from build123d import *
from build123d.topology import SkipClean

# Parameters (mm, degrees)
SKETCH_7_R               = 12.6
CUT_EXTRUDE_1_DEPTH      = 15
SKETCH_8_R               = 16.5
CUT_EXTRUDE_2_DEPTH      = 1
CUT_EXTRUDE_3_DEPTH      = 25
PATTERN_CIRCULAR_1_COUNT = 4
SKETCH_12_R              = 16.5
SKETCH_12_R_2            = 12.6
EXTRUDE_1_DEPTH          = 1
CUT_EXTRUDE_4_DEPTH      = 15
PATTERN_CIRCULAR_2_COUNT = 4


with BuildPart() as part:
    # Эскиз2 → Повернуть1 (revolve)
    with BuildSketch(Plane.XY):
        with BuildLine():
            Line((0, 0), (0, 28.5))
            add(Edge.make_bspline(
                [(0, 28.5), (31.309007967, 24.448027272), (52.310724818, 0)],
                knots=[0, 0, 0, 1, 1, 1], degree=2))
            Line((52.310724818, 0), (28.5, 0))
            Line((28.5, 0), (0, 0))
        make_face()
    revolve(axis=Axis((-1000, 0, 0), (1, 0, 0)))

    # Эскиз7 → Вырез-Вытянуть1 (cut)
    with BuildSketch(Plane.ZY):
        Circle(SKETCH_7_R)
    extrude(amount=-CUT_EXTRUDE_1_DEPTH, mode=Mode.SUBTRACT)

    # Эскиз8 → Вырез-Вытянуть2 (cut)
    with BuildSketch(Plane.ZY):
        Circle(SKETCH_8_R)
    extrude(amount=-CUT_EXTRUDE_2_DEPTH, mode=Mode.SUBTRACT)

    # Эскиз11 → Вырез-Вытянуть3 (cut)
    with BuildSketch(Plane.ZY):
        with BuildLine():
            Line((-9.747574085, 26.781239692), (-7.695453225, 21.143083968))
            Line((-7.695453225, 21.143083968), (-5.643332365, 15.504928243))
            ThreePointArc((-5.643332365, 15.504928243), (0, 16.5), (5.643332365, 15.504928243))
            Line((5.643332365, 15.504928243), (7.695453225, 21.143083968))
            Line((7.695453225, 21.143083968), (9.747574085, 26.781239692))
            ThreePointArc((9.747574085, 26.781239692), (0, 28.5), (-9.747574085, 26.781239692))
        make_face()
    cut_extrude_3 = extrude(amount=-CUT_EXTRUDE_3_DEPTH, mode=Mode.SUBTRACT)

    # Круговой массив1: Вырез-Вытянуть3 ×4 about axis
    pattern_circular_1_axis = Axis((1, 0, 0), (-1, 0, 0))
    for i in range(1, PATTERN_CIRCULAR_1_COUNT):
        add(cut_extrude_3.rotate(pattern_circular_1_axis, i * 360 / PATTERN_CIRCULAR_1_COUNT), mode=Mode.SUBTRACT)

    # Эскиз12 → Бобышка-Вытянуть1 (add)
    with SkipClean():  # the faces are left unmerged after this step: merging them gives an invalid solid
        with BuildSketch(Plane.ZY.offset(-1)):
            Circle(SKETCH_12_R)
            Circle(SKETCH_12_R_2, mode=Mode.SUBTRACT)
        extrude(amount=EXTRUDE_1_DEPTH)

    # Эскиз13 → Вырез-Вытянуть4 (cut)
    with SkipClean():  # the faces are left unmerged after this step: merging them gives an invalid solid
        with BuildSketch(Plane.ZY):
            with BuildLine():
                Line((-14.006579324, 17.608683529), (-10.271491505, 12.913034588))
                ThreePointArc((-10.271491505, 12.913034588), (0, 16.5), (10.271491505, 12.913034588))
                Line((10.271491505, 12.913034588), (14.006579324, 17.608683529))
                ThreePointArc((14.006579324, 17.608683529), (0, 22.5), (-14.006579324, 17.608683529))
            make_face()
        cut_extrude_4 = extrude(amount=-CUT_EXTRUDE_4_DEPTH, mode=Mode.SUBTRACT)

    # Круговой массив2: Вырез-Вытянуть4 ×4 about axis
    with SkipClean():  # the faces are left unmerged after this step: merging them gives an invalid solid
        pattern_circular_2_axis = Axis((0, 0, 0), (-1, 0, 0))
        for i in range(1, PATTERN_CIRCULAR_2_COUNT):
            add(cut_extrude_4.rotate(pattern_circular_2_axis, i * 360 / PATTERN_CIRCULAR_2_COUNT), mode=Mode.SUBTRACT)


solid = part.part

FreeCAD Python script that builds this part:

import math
import FreeCAD as App
import Part
import Sketcher
from FreeCAD import Vector
Q = App.Units.Quantity

doc = App.newDocument("Part")
params = doc.addObject("Spreadsheet::Sheet", "Params")
for row, (alias, value) in enumerate([
    ("revolution_angle", "360 deg"),
    ("sketch2_diameter", "25.2 mm"),
    ("pocket1_length", "15 mm"),
    ("sketch3_diameter", "33 mm"),
    ("pocket2_length", "1 mm"),
    ("sketch4_radius", "16.5 mm"),
    ("sketch4_radius2", "28.5 mm"),
    ("pocket3_length", "25 mm"),
    ("sketch5_diameter", "33 mm"),
    ("sketch5_diameter2", "25.2 mm"),
    ("pad1_length", "1 mm"),
    ("sketch6_radius", "16.5 mm"),
    ("sketch6_radius2", "22.5 mm"),
    ("pocket4_length", "15 mm"),
], start=1):
    params.set(f"A{row}", alias)
    params.set(f"B{row}", "=" + value)
    params.setAlias(f"B{row}", alias)

body = doc.addObject("PartDesign::Body", "Body")

sketch1 = body.newObject("Sketcher::SketchObject", "Sketch")
sketch1.AttachmentSupport = (doc.getObject("XY_Plane"), [""])
sketch1.MapMode = "FlatFace"
sketch1.addGeometry([
    Part.LineSegment(Vector(0, 28.5, 0), Vector(0, 0, 0)),
    Part.LineSegment(Vector(0, 0, 0), Vector(52.310725, 0, 0)),
    Part.BSplineCurve([Vector(0, 28.5, 0), Vector(31.309008, 24.448027, 0), Vector(52.310725, 0, 0)], [3, 3], [0, 1], False, 2, [1, 1, 1], False),
], False)
sketch1.addConstraint([
    Sketcher.Constraint("Block", 2),
    Sketcher.Constraint("Coincident", 0, 2, 1, 1),
    Sketcher.Constraint("Coincident", 1, 2, 2, 2),
    Sketcher.Constraint("Coincident", 2, 1, 0, 1),
    Sketcher.Constraint("Vertical", 0),
    Sketcher.Constraint("Horizontal", 1),
])
revolution = body.newObject("PartDesign::Revolution", "Revolution")
revolution.Profile = sketch1
revolution.ReferenceAxis = (sketch1, ["H_Axis"])
revolution.setExpression("Angle", "Params.revolution_angle")

sketch2 = body.newObject("Sketcher::SketchObject", "Sketch001")
sketch2.AttachmentSupport = (doc.getObject("YZ_Plane"), [""])
sketch2.MapMode = "FlatFace"
sketch2.addGeometry(Part.Circle(Vector(0, 0, 0), Vector(0, 0, 1), 13), False)
sketch2.addConstraint([
    Sketcher.Constraint("Coincident", 0, 3, -1, 1),
    Sketcher.Constraint("Diameter", 0, Q("25.2 mm")),
])
sketch2.setExpression("Constraints[1]", "Params.sketch2_diameter")
pocket1 = body.newObject("PartDesign::Pocket", "Pocket")
pocket1.Profile = sketch2
pocket1.setExpression("Length", "Params.pocket1_length")
pocket1.Reversed = True

sketch3 = body.newObject("Sketcher::SketchObject", "Sketch002")
sketch3.AttachmentSupport = (doc.getObject("YZ_Plane"), [""])
sketch3.MapMode = "FlatFace"
sketch3.addGeometry(Part.Circle(Vector(0, 0, 0), Vector(0, 0, 1), 16), False)
sketch3.addConstraint([
    Sketcher.Constraint("Coincident", 0, 3, -1, 1),
    Sketcher.Constraint("Diameter", 0, Q("33 mm")),
])
sketch3.setExpression("Constraints[1]", "Params.sketch3_diameter")
pocket2 = body.newObject("PartDesign::Pocket", "Pocket001")
pocket2.Profile = sketch3
pocket2.setExpression("Length", "Params.pocket2_length")
pocket2.Reversed = True

sketch4 = body.newObject("Sketcher::SketchObject", "Sketch003")
sketch4.AttachmentSupport = (doc.getObject("YZ_Plane"), [""])
sketch4.MapMode = "FlatFace"
sketch4.addGeometry([
    Part.LineSegment(Vector(27, -10, 0), Vector(21, -8, 0)),
    Part.LineSegment(Vector(21, -8, 0), Vector(16, -6, 0)),
    Part.ArcOfCircle(Part.Circle(Vector(0, 0, 0), Vector(0, 0, 1), 17), math.radians(-20), math.radians(20)),
    Part.LineSegment(Vector(16, 6, 0), Vector(21, 8, 0)),
    Part.LineSegment(Vector(21, 8, 0), Vector(27, 10, 0)),
    Part.ArcOfCircle(Part.Circle(Vector(0, 0, 0), Vector(0, 0, 1), 28), math.radians(-20), math.radians(20)),
], False)
sketch4.addConstraint([
    Sketcher.Constraint("Coincident", 0, 2, 1, 1),
    Sketcher.Constraint("Coincident", 1, 2, 2, 1),
    Sketcher.Constraint("Coincident", 2, 2, 3, 1),
    Sketcher.Constraint("Coincident", 3, 2, 4, 1),
    Sketcher.Constraint("Coincident", 4, 2, 5, 2),
    Sketcher.Constraint("Coincident", 5, 1, 0, 1),
    Sketcher.Constraint("Coincident", 2, 3, -1, 1),
    Sketcher.Constraint("Coincident", 5, 3, -1, 1),
    Sketcher.Constraint("Symmetric", 0, 2, 3, 2, -1),
    Sketcher.Constraint("Parallel", 0, 1),
    Sketcher.Constraint("Parallel", 3, 4),
    Sketcher.Constraint("Vertical", 1, 2, 2, 2),
    Sketcher.Constraint("Equal", 0, 1),
    Sketcher.Constraint("Radius", 2, Q("16.5 mm")),
    Sketcher.Constraint("Radius", 5, Q("28.5 mm")),
    Sketcher.Constraint("Angle", 0, Q("160 deg")),
    Sketcher.Constraint("DistanceX", -1, 1, 1, 2, Q("15.504928 mm")),
])
sketch4.setExpression("Constraints[13]", "Params.sketch4_radius")
sketch4.setExpression("Constraints[14]", "Params.sketch4_radius2")
pocket3 = body.newObject("PartDesign::Pocket", "Pocket002")
pocket3.Profile = sketch4
pocket3.setExpression("Length", "Params.pocket3_length")
pocket3.Reversed = True
doc.recompute()

polarpattern = body.newObject("PartDesign::PolarPattern", "PolarPattern")
polarpattern.Originals = [pocket3]
polarpattern.Axis = (doc.getObject("X_Axis"), [""])
polarpattern.Angle = 360
polarpattern.Occurrences = 4
body.Tip = polarpattern

sketch5 = body.newObject("Sketcher::SketchObject", "Sketch004")
sketch5.AttachmentSupport = (doc.getObject("YZ_Plane"), [""])
sketch5.MapMode = "FlatFace"
sketch5.AttachmentOffset = App.Placement(Vector(0, 0, 1), App.Rotation())
sketch5.addGeometry([
    Part.Circle(Vector(0, 0, 0), Vector(0, 0, 1), 16),
    Part.Circle(Vector(0, 0, 0), Vector(0, 0, 1), 13),
], False)
sketch5.addConstraint([
    Sketcher.Constraint("Coincident", 0, 3, -1, 1),
    Sketcher.Constraint("Coincident", 1, 3, -1, 1),
    Sketcher.Constraint("Diameter", 0, Q("33 mm")),
    Sketcher.Constraint("Diameter", 1, Q("25.2 mm")),
])
sketch5.setExpression("Constraints[2]", "Params.sketch5_diameter")
sketch5.setExpression("Constraints[3]", "Params.sketch5_diameter2")
pad1 = body.newObject("PartDesign::Pad", "Pad")
pad1.Profile = sketch5
pad1.setExpression("Length", "Params.pad1_length")
pad1.Reversed = True

sketch6 = body.newObject("Sketcher::SketchObject", "Sketch005")
sketch6.AttachmentSupport = (doc.getObject("YZ_Plane"), [""])
sketch6.MapMode = "FlatFace"
sketch6.addGeometry([
    Part.LineSegment(Vector(18, -14, 0), Vector(13, -10, 0)),
    Part.ArcOfCircle(Part.Circle(Vector(0, 0, 0), Vector(0, 0, 1), 17), math.radians(-38), math.radians(38)),
    Part.LineSegment(Vector(13, 10, 0), Vector(18, 14, 0)),
    Part.ArcOfCircle(Part.Circle(Vector(0, 0, 0), Vector(0, 0, 1), 22), math.radians(-39), math.radians(39)),
], False)
sketch6.addConstraint([
    Sketcher.Constraint("Coincident", 0, 2, 1, 1),
    Sketcher.Constraint("Coincident", 1, 2, 2, 1),
    Sketcher.Constraint("Coincident", 2, 2, 3, 2),
    Sketcher.Constraint("Coincident", 3, 1, 0, 1),
    Sketcher.Constraint("Coincident", 1, 3, -1, 1),
    Sketcher.Constraint("Coincident", 3, 3, -1, 1),
    Sketcher.Constraint("Vertical", 0, 2, 1, 2),
    Sketcher.Constraint("Vertical", 2, 2, 3, 1),
    Sketcher.Constraint("Radius", 1, Q("16.5 mm")),
    Sketcher.Constraint("Radius", 3, Q("22.5 mm")),
    Sketcher.Constraint("Angle", 0, Q("141.5 deg")),
    Sketcher.Constraint("DistanceY", 0, 2, -1, 1, Q("10.271492 mm")),
])
sketch6.setExpression("Constraints[8]", "Params.sketch6_radius")
sketch6.setExpression("Constraints[9]", "Params.sketch6_radius2")
pocket4 = body.newObject("PartDesign::Pocket", "Pocket003")
pocket4.Profile = sketch6
pocket4.setExpression("Length", "Params.pocket4_length")
pocket4.Reversed = True
doc.recompute()

polarpattern2 = body.newObject("PartDesign::PolarPattern", "PolarPattern001")
polarpattern2.Originals = [pocket4]
polarpattern2.Axis = (doc.getObject("X_Axis"), [""])
polarpattern2.Angle = 360
polarpattern2.Occurrences = 4
body.Tip = polarpattern2

doc.recompute()
